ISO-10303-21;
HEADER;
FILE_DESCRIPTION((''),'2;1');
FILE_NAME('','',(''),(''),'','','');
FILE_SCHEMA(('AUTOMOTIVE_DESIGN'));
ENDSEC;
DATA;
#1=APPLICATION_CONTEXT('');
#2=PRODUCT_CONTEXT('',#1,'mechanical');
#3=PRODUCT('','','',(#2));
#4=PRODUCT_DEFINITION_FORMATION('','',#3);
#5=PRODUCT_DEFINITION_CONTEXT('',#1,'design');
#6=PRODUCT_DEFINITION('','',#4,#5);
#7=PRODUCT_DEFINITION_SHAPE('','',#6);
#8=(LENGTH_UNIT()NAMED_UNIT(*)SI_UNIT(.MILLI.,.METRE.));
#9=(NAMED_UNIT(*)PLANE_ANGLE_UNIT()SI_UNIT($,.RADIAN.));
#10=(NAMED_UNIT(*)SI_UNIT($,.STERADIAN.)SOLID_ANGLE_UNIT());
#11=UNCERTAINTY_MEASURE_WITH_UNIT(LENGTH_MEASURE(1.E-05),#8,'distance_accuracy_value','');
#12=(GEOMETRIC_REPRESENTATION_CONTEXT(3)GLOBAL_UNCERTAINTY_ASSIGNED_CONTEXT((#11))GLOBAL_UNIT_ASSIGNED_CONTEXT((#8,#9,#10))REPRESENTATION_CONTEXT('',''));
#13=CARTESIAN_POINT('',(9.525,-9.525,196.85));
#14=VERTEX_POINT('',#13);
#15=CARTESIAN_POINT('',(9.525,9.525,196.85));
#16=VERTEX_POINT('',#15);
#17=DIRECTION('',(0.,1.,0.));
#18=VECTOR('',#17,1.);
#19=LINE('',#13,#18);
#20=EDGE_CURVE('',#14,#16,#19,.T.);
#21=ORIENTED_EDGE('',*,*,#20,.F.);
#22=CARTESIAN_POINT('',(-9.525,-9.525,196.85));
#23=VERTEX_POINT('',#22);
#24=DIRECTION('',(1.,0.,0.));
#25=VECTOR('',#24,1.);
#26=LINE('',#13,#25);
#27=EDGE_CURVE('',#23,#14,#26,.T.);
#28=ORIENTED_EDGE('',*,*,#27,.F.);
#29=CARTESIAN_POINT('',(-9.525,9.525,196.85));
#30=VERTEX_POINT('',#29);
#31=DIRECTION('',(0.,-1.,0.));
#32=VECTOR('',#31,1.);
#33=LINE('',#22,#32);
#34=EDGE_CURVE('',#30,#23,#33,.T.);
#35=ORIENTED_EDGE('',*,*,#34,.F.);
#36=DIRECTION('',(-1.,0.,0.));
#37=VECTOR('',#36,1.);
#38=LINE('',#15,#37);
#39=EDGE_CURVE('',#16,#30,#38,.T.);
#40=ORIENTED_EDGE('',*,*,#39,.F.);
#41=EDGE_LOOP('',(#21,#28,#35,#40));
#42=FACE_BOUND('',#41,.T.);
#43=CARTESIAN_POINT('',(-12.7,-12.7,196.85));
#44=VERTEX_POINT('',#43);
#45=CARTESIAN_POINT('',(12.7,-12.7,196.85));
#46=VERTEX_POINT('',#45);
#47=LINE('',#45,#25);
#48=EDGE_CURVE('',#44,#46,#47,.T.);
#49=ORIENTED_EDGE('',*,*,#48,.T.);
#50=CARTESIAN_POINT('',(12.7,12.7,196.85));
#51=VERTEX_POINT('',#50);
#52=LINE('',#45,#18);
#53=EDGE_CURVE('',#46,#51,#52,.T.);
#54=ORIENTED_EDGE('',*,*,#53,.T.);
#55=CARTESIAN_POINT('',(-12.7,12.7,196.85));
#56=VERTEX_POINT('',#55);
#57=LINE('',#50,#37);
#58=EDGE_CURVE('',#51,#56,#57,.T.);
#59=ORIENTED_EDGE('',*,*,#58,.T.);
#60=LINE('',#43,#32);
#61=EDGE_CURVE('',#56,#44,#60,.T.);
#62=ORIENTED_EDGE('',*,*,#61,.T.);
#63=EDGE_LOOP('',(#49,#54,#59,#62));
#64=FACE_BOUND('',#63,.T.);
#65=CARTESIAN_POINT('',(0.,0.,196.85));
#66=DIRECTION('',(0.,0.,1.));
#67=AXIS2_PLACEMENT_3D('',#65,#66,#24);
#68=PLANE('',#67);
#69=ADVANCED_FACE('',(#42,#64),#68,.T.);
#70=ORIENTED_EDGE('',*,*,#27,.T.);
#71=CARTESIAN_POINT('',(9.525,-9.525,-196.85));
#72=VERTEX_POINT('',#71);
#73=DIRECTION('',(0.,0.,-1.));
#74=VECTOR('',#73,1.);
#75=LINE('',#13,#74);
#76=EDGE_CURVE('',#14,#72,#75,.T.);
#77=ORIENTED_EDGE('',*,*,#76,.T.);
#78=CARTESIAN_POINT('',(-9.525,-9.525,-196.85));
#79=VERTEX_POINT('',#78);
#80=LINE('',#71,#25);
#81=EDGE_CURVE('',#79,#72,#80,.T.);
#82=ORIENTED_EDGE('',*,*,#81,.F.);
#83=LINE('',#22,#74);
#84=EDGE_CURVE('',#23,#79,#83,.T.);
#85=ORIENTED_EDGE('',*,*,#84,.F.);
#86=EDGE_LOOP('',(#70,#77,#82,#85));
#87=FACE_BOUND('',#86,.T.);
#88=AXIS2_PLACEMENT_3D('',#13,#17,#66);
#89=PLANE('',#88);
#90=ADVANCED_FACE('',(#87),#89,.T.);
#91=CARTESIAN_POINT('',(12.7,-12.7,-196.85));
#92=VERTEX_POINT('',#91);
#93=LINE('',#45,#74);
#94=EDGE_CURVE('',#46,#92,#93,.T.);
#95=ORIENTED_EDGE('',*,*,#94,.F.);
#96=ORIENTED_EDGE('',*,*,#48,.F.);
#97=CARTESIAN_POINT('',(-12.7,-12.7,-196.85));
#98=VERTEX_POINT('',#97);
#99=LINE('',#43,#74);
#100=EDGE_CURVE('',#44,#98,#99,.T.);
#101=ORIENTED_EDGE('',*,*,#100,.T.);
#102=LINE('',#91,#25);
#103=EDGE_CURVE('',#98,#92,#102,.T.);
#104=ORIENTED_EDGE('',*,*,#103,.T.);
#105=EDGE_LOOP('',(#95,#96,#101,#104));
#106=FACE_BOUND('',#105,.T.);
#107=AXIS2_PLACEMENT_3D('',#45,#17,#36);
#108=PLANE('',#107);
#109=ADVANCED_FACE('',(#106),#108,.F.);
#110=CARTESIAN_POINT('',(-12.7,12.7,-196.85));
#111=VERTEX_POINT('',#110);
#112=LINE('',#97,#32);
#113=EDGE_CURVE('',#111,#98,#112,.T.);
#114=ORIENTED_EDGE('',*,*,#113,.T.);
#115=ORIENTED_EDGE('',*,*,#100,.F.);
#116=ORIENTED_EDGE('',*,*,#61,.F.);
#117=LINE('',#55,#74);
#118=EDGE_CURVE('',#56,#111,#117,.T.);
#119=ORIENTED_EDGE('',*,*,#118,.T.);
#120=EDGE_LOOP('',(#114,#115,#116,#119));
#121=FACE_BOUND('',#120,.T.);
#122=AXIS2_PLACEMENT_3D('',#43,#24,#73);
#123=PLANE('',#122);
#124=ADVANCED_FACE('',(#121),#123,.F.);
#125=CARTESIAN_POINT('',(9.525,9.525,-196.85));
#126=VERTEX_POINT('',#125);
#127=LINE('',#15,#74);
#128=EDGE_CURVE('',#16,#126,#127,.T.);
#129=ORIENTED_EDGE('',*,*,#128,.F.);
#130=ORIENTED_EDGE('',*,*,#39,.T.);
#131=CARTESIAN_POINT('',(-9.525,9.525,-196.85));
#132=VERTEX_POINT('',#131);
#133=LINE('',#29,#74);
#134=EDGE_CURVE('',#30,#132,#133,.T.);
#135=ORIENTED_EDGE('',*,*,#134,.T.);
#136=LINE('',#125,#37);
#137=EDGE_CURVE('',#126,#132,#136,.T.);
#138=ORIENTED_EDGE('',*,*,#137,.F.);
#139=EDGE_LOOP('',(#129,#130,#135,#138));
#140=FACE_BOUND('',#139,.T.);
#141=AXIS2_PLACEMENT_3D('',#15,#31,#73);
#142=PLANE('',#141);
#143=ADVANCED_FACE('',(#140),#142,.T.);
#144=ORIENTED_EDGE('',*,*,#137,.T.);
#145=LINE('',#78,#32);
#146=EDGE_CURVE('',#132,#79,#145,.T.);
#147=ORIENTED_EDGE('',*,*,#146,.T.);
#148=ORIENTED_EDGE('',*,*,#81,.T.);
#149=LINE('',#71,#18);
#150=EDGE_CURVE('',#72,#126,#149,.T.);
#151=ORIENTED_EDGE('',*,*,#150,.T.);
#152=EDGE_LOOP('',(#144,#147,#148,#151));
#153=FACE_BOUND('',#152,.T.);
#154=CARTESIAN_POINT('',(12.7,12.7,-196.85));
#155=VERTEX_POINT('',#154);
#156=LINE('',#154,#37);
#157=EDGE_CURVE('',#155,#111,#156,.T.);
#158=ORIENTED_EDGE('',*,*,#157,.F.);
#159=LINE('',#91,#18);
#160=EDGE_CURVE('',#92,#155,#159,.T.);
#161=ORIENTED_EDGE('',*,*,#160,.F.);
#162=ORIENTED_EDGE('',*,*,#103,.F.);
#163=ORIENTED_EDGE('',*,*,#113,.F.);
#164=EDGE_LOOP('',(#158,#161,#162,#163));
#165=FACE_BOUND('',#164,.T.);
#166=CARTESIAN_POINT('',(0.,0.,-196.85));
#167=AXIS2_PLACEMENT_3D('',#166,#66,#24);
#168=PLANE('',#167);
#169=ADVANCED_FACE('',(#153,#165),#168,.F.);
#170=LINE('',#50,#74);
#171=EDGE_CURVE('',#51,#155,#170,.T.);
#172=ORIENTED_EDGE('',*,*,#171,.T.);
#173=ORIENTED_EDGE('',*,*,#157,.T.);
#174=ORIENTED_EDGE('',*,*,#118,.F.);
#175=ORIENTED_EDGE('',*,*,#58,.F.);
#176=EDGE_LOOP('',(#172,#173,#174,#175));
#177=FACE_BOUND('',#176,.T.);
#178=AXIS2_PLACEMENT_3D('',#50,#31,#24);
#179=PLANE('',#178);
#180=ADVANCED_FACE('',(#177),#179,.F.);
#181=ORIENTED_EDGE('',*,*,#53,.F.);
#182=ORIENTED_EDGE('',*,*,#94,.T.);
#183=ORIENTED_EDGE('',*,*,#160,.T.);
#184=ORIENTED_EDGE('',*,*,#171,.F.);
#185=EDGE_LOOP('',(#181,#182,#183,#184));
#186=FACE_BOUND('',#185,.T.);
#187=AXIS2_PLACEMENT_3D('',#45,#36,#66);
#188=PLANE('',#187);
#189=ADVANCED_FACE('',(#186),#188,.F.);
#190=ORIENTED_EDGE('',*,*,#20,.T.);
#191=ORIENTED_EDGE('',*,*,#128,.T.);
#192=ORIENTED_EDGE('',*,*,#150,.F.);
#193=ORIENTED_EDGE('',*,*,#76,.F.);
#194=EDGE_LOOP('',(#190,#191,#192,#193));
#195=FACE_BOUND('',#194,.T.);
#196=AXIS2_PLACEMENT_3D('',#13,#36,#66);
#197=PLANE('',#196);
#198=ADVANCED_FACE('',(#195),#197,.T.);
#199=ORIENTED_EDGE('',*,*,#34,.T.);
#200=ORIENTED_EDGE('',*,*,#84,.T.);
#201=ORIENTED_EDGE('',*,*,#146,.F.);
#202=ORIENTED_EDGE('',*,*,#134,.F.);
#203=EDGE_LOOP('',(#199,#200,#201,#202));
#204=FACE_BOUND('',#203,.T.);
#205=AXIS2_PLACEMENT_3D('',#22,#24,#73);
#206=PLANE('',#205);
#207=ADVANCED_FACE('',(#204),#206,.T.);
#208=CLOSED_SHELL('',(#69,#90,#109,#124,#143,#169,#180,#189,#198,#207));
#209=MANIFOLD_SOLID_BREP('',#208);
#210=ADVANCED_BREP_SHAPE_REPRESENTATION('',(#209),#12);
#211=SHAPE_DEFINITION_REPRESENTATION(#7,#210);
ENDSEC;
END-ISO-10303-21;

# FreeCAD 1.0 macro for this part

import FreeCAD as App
import Part
import Sketcher
Q = App.Units.Quantity


def add_polygon(sketch, points):
    """Adds a closed chain of lines whose ends are joined by coincident constraints."""
    first, n = sketch.GeometryCount, len(points)
    for a, b in zip(points, points[1:] + points[:1]):
        sketch.addGeometry(Part.LineSegment(App.Vector(*a, 0), App.Vector(*b, 0)), False)
    for i in range(n):
        sketch.addConstraint(Sketcher.Constraint("Coincident", first + i, 2, first + (i + 1) % n, 1))

doc = App.newDocument("Part")
params = doc.addObject("Spreadsheet::Sheet", "Params")
for row, (alias, value) in enumerate([
    ("sketch1_width", "1 in"),
    ("sketch1_width2", "0.75 in"),
    ("pad1_length", "15.5 in"),
], start=1):
    params.set(f"A{row}", alias)
    params.set(f"B{row}", "=" + value)
    params.setAlias(f"B{row}", alias)

body = doc.addObject("PartDesign::Body", "Body")

# Sketch on XY plane
sketch1 = body.newObject("Sketcher::SketchObject", "Sketch")
sketch1.AttachmentSupport = (doc.getObject("XY_Plane"), [""])
sketch1.MapMode = "FlatFace"
add_polygon(sketch1, [(-13, 13), (-13, -13), (13, -13), (13, 13)])  # lines 0-3
add_polygon(sketch1, [(10, -10), (-10, -10), (-10, 10), (10, 10)])  # lines 4-7
sketch1.addConstraint([
    Sketcher.Constraint("Vertical", 0),
    Sketcher.Constraint("Horizontal", 1),
    Sketcher.Constraint("Vertical", 2),
    Sketcher.Constraint("Horizontal", 3),
    Sketcher.Constraint("Horizontal", 4),
    Sketcher.Constraint("Vertical", 5),
    Sketcher.Constraint("Horizontal", 6),
    Sketcher.Constraint("Vertical", 7),
    Sketcher.Constraint("Symmetric", 0, 2, 2, 2, -1, 1),
    Sketcher.Constraint("Symmetric", 4, 2, 6, 2, -1, 1),
    Sketcher.Constraint("Equal", 3, 0),
    Sketcher.Constraint("Equal", 6, 5),
    Sketcher.Constraint("DistanceX", 1, 1, 1, 2, Q("1 in")),
    Sketcher.Constraint("DistanceX", 4, 2, 4, 1, Q("0.75 in")),
])
sketch1.setExpression("Constraints[20]", "Params.sketch1_width")
sketch1.setExpression("Constraints[21]", "Params.sketch1_width2")
pad1 = body.newObject("PartDesign::Pad", "Pad")
pad1.Profile = sketch1
pad1.setExpression("Length", "Params.pad1_length")
pad1.Midplane = True

doc.recompute()
